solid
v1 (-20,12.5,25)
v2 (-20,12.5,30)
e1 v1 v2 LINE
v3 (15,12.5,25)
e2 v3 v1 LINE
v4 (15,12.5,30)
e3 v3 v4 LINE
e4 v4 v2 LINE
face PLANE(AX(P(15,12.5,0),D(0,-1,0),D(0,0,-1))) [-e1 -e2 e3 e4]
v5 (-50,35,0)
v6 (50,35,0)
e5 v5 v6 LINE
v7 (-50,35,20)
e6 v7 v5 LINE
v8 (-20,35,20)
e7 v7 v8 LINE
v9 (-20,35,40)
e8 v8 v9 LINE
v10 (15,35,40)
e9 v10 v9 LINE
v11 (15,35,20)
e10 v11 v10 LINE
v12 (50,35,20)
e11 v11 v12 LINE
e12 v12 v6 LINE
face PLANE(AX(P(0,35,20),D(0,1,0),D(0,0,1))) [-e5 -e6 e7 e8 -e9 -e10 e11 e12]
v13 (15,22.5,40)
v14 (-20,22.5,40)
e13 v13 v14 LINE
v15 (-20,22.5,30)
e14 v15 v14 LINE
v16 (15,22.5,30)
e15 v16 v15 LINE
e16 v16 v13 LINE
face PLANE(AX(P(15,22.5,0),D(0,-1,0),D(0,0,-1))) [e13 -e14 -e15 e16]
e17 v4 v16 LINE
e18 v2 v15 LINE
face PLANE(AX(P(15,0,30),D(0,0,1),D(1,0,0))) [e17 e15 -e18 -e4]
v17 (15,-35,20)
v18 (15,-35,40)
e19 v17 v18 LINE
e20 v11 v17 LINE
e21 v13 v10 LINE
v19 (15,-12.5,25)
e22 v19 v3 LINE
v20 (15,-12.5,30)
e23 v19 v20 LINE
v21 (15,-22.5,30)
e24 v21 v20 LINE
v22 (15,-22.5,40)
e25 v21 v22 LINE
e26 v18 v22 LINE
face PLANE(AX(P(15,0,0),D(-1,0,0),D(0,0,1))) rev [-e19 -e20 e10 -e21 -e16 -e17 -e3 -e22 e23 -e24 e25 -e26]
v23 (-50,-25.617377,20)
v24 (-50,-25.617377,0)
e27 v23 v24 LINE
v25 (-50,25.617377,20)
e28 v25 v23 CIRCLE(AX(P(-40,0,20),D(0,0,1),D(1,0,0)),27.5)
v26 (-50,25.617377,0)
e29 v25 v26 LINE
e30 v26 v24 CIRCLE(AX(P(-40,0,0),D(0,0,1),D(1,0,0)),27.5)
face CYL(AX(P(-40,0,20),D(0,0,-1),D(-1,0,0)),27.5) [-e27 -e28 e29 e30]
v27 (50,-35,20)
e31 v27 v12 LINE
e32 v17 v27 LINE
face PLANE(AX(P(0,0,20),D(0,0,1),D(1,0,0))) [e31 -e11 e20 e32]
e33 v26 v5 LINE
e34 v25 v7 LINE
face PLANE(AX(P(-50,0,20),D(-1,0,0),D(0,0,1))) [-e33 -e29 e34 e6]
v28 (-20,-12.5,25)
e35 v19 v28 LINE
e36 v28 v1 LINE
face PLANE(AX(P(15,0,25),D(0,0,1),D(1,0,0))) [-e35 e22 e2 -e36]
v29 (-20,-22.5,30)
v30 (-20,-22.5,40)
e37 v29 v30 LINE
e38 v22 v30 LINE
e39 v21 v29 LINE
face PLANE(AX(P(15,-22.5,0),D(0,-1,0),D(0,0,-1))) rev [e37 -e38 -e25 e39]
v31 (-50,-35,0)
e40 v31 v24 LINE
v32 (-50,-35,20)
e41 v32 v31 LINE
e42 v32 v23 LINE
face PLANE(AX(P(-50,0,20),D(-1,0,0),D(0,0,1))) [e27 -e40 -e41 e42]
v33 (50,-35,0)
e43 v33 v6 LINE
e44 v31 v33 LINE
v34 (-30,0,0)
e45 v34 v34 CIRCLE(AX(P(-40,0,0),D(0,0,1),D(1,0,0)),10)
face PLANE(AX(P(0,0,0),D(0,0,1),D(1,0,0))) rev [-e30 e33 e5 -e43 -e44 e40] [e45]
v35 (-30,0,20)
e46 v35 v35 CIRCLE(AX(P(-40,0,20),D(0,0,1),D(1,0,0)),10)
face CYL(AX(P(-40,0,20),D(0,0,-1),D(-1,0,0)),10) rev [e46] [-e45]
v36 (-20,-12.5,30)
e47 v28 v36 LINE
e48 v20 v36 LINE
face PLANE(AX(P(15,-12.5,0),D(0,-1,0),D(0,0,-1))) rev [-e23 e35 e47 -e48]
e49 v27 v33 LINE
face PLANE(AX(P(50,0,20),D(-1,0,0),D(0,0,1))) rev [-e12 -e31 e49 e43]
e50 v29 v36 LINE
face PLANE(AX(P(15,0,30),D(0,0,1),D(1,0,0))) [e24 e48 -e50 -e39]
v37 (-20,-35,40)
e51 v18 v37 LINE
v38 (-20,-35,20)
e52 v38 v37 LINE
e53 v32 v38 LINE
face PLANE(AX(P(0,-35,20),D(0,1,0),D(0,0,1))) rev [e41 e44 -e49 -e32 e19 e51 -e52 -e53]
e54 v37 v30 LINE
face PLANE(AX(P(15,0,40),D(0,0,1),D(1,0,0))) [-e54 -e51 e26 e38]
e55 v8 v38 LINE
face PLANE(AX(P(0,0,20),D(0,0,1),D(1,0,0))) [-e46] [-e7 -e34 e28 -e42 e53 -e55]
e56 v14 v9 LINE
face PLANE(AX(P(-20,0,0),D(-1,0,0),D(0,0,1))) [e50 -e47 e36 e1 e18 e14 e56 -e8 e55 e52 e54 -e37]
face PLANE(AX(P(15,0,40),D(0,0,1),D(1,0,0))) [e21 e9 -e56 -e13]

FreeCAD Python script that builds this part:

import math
import FreeCAD as App
import Part
import Sketcher
from FreeCAD import Vector


def add_polygon(sketch, points):
    """Adds a closed chain of lines whose ends are joined by coincident constraints."""
    first, n = sketch.GeometryCount, len(points)
    for a, b in zip(points, points[1:] + points[:1]):
        sketch.addGeometry(Part.LineSegment(App.Vector(*a, 0), App.Vector(*b, 0)), False)
    for i in range(n):
        sketch.addConstraint(Sketcher.Constraint("Coincident", first + i, 2, first + (i + 1) % n, 1))

doc = App.newDocument("Part")
body = doc.addObject("PartDesign::Body", "Body")

sketch1 = body.newObject("Sketcher::SketchObject", "Sketch")
sketch1.AttachmentSupport = (doc.getObject("XY_Plane"), [""])
sketch1.MapMode = "FlatFace"
sketch1.addGeometry(Part.LineSegment(Vector(-50, -26, 0), Vector(-50, -35, 0)), False)
sketch1.addGeometry(Part.LineSegment(Vector(-50, -35, 0), Vector(50, -35, 0)), False)
sketch1.addGeometry(Part.LineSegment(Vector(50, -35, 0), Vector(50, 35, 0)), False)
sketch1.addGeometry(Part.LineSegment(Vector(50, 35, 0), Vector(-50, 35, 0)), False)
sketch1.addGeometry(Part.LineSegment(Vector(-50, 35, 0), Vector(-50, 26, 0)), False)
sketch1.addGeometry(Part.ArcOfCircle(Part.Circle(Vector(-40, 0, 0), Vector(0, 0, 1), 28), math.radians(111), math.radians(249)), False)
sketch1.addGeometry(Part.Circle(Vector(-40, 0, 0), Vector(0, 0, 1), 10), False)
sketch1.addConstraint(Sketcher.Constraint("Coincident", 0, 2, 1, 1))
sketch1.addConstraint(Sketcher.Constraint("Coincident", 1, 2, 2, 1))
sketch1.addConstraint(Sketcher.Constraint("Coincident", 2, 2, 3, 1))
sketch1.addConstraint(Sketcher.Constraint("Coincident", 3, 2, 4, 1))
sketch1.addConstraint(Sketcher.Constraint("Coincident", 4, 2, 5, 1))
sketch1.addConstraint(Sketcher.Constraint("Coincident", 5, 2, 0, 1))
sketch1.addConstraint(Sketcher.Constraint("Vertical", 0))
sketch1.addConstraint(Sketcher.Constraint("Horizontal", 1))
sketch1.addConstraint(Sketcher.Constraint("Vertical", 2))
sketch1.addConstraint(Sketcher.Constraint("Horizontal", 3))
sketch1.addConstraint(Sketcher.Constraint("Vertical", 4))
sketch1.addConstraint(Sketcher.Constraint("Coincident", 6, 3, 5, 3))
sketch1.addConstraint(Sketcher.Constraint("Symmetric", 0, 2, 2, 2, -1, 1))
sketch1.addConstraint(Sketcher.Constraint("Symmetric", 4, 2, 5, 2, -1))
sketch1.addConstraint(Sketcher.Constraint("Diameter", 6, 20.0))
sketch1.addConstraint(Sketcher.Constraint("Radius", 5, 27.5))
sketch1.addConstraint(Sketcher.Constraint("DistanceX", 1, 1, 1, 2, 100.0))
sketch1.addConstraint(Sketcher.Constraint("DistanceY", 2, 1, 2, 2, 70.0))
sketch1.addConstraint(Sketcher.Constraint("DistanceX", 5, 3, -1, 1, 40.0))
pad1 = body.newObject("PartDesign::Pad", "Pad")
pad1.Profile = sketch1
pad1.Length = 20

sketch2 = body.newObject("Sketcher::SketchObject", "Sketch001")
sketch2.AttachmentSupport = (doc.getObject("YZ_Plane"), [""])
sketch2.MapMode = "FlatFace"
sketch2.AttachmentOffset = App.Placement(Vector(0, 0, -20), App.Rotation())
add_polygon(sketch2, [(35, 0), (-35, 0), (-35, 40), (-22, 40), (-22, 30), (-12, 30), (-12, 25), (12, 25), (12, 30), (22, 30), (22, 40), (35, 40)])
sketch2.addConstraint(Sketcher.Constraint("Horizontal", 0))
sketch2.addConstraint(Sketcher.Constraint("Vertical", 1))
sketch2.addConstraint(Sketcher.Constraint("Horizontal", 2))
sketch2.addConstraint(Sketcher.Constraint("Vertical", 3))
sketch2.addConstraint(Sketcher.Constraint("Horizontal", 4))
sketch2.addConstraint(Sketcher.Constraint("Vertical", 5))
sketch2.addConstraint(Sketcher.Constraint("Horizontal", 6))
sketch2.addConstraint(Sketcher.Constraint("Vertical", 7))
sketch2.addConstraint(Sketcher.Constraint("Horizontal", 8))
sketch2.addConstraint(Sketcher.Constraint("Vertical", 9))
sketch2.addConstraint(Sketcher.Constraint("Horizontal", 10))
sketch2.addConstraint(Sketcher.Constraint("Vertical", 11))
sketch2.addConstraint(Sketcher.Constraint("Symmetric", 0, 2, 11, 2, -1, 1))
sketch2.addConstraint(Sketcher.Constraint("Symmetric", 4, 2, 7, 2, -2))
sketch2.addConstraint(Sketcher.Constraint("Symmetric", 2, 2, 9, 2, -2))
sketch2.addConstraint(Sketcher.Constraint("Equal", 8, 3))
sketch2.addConstraint(Sketcher.Constraint("DistanceX", 0, 2, 0, 1, 70.0))
sketch2.addConstraint(Sketcher.Constraint("DistanceX", 4, 1, 4, 2, 10.0))
sketch2.addConstraint(Sketcher.Constraint("DistanceX", 6, 1, 6, 2, 25.0))
sketch2.addConstraint(Sketcher.Constraint("DistanceY", 1, 1, 1, 2, 40.0))
sketch2.addConstraint(Sketcher.Constraint("DistanceY", 5, 2, 5, 1, 5.0))
pad2 = body.newObject("PartDesign::Pad", "Pad001")
pad2.Profile = sketch2
pad2.Length = 35

doc.recompute()
